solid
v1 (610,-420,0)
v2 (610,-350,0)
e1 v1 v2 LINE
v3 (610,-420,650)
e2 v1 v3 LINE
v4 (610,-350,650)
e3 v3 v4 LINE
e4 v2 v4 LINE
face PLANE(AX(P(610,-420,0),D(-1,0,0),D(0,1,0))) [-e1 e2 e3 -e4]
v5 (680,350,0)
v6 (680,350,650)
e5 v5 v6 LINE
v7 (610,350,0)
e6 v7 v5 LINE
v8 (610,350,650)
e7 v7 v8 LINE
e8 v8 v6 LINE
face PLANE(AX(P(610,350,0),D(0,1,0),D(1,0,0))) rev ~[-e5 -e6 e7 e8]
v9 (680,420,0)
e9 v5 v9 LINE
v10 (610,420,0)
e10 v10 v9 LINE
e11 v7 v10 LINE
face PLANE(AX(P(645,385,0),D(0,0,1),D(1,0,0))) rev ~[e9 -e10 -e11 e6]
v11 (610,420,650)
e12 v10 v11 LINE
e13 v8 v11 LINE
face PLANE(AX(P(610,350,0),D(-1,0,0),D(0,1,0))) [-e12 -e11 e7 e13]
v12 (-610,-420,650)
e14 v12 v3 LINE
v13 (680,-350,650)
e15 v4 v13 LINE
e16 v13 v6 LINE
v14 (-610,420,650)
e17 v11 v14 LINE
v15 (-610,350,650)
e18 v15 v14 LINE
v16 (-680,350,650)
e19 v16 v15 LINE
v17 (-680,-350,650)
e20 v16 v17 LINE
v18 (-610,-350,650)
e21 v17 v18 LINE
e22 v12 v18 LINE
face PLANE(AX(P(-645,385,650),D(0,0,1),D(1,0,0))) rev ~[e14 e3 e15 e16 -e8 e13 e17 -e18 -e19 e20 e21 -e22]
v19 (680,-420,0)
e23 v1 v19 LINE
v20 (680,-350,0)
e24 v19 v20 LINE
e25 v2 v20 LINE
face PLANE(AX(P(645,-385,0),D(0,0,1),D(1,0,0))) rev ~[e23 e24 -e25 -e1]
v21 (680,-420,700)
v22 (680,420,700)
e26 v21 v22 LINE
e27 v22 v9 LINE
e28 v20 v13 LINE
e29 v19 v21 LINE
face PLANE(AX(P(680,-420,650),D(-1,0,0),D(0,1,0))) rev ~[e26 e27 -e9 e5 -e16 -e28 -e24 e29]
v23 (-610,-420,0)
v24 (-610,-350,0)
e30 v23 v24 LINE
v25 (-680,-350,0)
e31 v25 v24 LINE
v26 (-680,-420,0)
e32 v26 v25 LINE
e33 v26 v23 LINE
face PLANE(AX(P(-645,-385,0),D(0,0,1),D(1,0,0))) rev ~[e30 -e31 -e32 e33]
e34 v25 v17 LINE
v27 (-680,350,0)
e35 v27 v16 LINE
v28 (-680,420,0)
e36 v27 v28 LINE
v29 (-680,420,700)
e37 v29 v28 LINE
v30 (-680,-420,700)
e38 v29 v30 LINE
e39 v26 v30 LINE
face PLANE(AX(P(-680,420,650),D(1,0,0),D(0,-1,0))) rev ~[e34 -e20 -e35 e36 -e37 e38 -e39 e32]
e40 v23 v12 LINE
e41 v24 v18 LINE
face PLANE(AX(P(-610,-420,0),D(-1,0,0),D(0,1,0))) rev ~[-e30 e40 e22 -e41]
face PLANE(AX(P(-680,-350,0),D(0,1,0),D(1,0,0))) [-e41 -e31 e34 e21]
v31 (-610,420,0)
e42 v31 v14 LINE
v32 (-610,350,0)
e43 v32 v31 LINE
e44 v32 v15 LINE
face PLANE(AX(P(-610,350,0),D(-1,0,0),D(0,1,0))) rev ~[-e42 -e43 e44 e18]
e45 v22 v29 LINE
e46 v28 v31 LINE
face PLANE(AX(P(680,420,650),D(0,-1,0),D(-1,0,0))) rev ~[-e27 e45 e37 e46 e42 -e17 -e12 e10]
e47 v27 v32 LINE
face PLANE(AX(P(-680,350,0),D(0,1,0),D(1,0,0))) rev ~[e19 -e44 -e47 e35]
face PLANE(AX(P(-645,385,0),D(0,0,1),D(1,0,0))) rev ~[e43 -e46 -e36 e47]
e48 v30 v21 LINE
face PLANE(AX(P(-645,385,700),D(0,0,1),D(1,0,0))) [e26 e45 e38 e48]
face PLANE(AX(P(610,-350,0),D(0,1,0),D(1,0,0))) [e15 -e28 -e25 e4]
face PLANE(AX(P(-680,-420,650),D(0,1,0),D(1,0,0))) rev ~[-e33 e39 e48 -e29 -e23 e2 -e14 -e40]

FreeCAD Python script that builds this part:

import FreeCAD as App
import Part
import Sketcher
from FreeCAD import Vector


def add_polygon(sketch, points):
    """Adds a closed chain of lines whose ends are joined by coincident constraints."""
    first, n = sketch.GeometryCount, len(points)
    for a, b in zip(points, points[1:] + points[:1]):
        sketch.addGeometry(Part.LineSegment(App.Vector(*a, 0), App.Vector(*b, 0)), False)
    for i in range(n):
        sketch.addConstraint(Sketcher.Constraint("Coincident", first + i, 2, first + (i + 1) % n, 1))

doc = App.newDocument("Part")
body = doc.addObject("PartDesign::Body", "Body")

sketch1 = doc.addObject("Sketcher::SketchObject", "Sketch")
body.addObject(sketch1)
sketch1.AttachmentSupport = (doc.XY_Plane, [""])
sketch1.MapMode = "FlatFace"
add_polygon(sketch1, [(-680, 420), (-680, 350), (-610, 350), (-610, 420)])
sketch1.addConstraint([
    Sketcher.Constraint("Vertical", 0),
    Sketcher.Constraint("Horizontal", 1),
    Sketcher.Constraint("Vertical", 2),
    Sketcher.Constraint("Horizontal", 3),
    Sketcher.Constraint("Equal", 3, 0),
    Sketcher.Constraint("DistanceX", 1, 1, 1, 2, 70.0),
    Sketcher.Constraint("DistanceX", 0, 2, -1, 1, 680.0),
    Sketcher.Constraint("DistanceY", -1, 1, 0, 2, 350.0),
])
pad1 = doc.addObject("PartDesign::Pad", "Pad")
body.addObject(pad1)
pad1.Profile = sketch1
pad1.Length = 650
body2 = doc.addObject("PartDesign::Body", "Body001")

sketch2 = doc.addObject("Sketcher::SketchObject", "Sketch001")
body2.addObject(sketch2)
sketch2.AttachmentSupport = (doc.getObject("XY_Plane001"), [""])
sketch2.MapMode = "FlatFace"
add_polygon(sketch2, [(610, 420), (610, 350), (680, 350), (680, 420)])
sketch2.addConstraint([
    Sketcher.Constraint("Vertical", 0),
    Sketcher.Constraint("Horizontal", 1),
    Sketcher.Constraint("Vertical", 2),
    Sketcher.Constraint("Horizontal", 3),
    Sketcher.Constraint("Equal", 3, 0),
    Sketcher.Constraint("DistanceX", 1, 1, 1, 2, 70.0),
    Sketcher.Constraint("DistanceX", -1, 1, 0, 2, 610.0),
    Sketcher.Constraint("DistanceY", -1, 1, 0, 2, 350.0),
])
pad2 = doc.addObject("PartDesign::Pad", "Pad001")
body2.addObject(pad2)
pad2.Profile = sketch2
pad2.Length = 650
body3 = doc.addObject("PartDesign::Body", "Body002")

sketch3 = doc.addObject("Sketcher::SketchObject", "Sketch002")
body3.addObject(sketch3)
sketch3.AttachmentSupport = (doc.getObject("XY_Plane002"), [""])
sketch3.MapMode = "FlatFace"
add_polygon(sketch3, [(610, -350), (610, -420), (680, -420), (680, -350)])
sketch3.addConstraint([
    Sketcher.Constraint("Vertical", 0),
    Sketcher.Constraint("Horizontal", 1),
    Sketcher.Constraint("Vertical", 2),
    Sketcher.Constraint("Horizontal", 3),
    Sketcher.Constraint("Equal", 3, 0),
    Sketcher.Constraint("DistanceX", 1, 1, 1, 2, 70.0),
    Sketcher.Constraint("DistanceX", -1, 1, 0, 2, 610.0),
    Sketcher.Constraint("DistanceY", 0, 2, -1, 1, 420.0),
])
pad3 = doc.addObject("PartDesign::Pad", "Pad002")
body3.addObject(pad3)
pad3.Profile = sketch3
pad3.Length = 650
body4 = doc.addObject("PartDesign::Body", "Body003")

sketch4 = doc.addObject("Sketcher::SketchObject", "Sketch003")
body4.addObject(sketch4)
sketch4.AttachmentSupport = (doc.getObject("XY_Plane003"), [""])
sketch4.MapMode = "FlatFace"
add_polygon(sketch4, [(-680, -350), (-680, -420), (-610, -420), (-610, -350)])
sketch4.addConstraint([
    Sketcher.Constraint("Vertical", 0),
    Sketcher.Constraint("Horizontal", 1),
    Sketcher.Constraint("Vertical", 2),
    Sketcher.Constraint("Horizontal", 3),
    Sketcher.Constraint("Equal", 3, 0),
    Sketcher.Constraint("DistanceX", 1, 1, 1, 2, 70.0),
    Sketcher.Constraint("DistanceX", 0, 2, -1, 1, 680.0),
    Sketcher.Constraint("DistanceY", 0, 2, -1, 1, 420.0),
])
pad4 = doc.addObject("PartDesign::Pad", "Pad003")
body4.addObject(pad4)
pad4.Profile = sketch4
pad4.Length = 650
body.AllowCompound = True
doc.recompute()

boolean = doc.addObject("PartDesign::Boolean", "Boolean")
body.addObject(boolean)
boolean.Type = "Fuse"
boolean.addObjects([body2])
doc.recompute()

boolean2 = doc.addObject("PartDesign::Boolean", "Boolean001")
body.addObject(boolean2)
boolean2.Type = "Fuse"
boolean2.addObjects([body3])
doc.recompute()

boolean3 = doc.addObject("PartDesign::Boolean", "Boolean002")
body.addObject(boolean3)
boolean3.Type = "Fuse"
boolean3.addObjects([body4])

sketch5 = doc.addObject("Sketcher::SketchObject", "Sketch004")
body.addObject(sketch5)
sketch5.AttachmentSupport = (doc.XY_Plane, [""])
sketch5.MapMode = "FlatFace"
sketch5.AttachmentOffset = App.Placement(Vector(0, 0, 650), App.Rotation())
add_polygon(sketch5, [(-680, 420), (-680, -420), (680, -420), (680, 420)])
sketch5.addConstraint([
    Sketcher.Constraint("Vertical", 0),
    Sketcher.Constraint("Horizontal", 1),
    Sketcher.Constraint("Vertical", 2),
    Sketcher.Constraint("Horizontal", 3),
    Sketcher.Constraint("Symmetric", 0, 2, 2, 2, -1, 1),
    Sketcher.Constraint("DistanceX", 1, 1, 1, 2, 1360.0),
    Sketcher.Constraint("DistanceY", 0, 2, 0, 1, 840.0),
])
pad5 = doc.addObject("PartDesign::Pad", "Pad004")
body.addObject(pad5)
pad5.Profile = sketch5
pad5.Length = 50

doc.recompute()
